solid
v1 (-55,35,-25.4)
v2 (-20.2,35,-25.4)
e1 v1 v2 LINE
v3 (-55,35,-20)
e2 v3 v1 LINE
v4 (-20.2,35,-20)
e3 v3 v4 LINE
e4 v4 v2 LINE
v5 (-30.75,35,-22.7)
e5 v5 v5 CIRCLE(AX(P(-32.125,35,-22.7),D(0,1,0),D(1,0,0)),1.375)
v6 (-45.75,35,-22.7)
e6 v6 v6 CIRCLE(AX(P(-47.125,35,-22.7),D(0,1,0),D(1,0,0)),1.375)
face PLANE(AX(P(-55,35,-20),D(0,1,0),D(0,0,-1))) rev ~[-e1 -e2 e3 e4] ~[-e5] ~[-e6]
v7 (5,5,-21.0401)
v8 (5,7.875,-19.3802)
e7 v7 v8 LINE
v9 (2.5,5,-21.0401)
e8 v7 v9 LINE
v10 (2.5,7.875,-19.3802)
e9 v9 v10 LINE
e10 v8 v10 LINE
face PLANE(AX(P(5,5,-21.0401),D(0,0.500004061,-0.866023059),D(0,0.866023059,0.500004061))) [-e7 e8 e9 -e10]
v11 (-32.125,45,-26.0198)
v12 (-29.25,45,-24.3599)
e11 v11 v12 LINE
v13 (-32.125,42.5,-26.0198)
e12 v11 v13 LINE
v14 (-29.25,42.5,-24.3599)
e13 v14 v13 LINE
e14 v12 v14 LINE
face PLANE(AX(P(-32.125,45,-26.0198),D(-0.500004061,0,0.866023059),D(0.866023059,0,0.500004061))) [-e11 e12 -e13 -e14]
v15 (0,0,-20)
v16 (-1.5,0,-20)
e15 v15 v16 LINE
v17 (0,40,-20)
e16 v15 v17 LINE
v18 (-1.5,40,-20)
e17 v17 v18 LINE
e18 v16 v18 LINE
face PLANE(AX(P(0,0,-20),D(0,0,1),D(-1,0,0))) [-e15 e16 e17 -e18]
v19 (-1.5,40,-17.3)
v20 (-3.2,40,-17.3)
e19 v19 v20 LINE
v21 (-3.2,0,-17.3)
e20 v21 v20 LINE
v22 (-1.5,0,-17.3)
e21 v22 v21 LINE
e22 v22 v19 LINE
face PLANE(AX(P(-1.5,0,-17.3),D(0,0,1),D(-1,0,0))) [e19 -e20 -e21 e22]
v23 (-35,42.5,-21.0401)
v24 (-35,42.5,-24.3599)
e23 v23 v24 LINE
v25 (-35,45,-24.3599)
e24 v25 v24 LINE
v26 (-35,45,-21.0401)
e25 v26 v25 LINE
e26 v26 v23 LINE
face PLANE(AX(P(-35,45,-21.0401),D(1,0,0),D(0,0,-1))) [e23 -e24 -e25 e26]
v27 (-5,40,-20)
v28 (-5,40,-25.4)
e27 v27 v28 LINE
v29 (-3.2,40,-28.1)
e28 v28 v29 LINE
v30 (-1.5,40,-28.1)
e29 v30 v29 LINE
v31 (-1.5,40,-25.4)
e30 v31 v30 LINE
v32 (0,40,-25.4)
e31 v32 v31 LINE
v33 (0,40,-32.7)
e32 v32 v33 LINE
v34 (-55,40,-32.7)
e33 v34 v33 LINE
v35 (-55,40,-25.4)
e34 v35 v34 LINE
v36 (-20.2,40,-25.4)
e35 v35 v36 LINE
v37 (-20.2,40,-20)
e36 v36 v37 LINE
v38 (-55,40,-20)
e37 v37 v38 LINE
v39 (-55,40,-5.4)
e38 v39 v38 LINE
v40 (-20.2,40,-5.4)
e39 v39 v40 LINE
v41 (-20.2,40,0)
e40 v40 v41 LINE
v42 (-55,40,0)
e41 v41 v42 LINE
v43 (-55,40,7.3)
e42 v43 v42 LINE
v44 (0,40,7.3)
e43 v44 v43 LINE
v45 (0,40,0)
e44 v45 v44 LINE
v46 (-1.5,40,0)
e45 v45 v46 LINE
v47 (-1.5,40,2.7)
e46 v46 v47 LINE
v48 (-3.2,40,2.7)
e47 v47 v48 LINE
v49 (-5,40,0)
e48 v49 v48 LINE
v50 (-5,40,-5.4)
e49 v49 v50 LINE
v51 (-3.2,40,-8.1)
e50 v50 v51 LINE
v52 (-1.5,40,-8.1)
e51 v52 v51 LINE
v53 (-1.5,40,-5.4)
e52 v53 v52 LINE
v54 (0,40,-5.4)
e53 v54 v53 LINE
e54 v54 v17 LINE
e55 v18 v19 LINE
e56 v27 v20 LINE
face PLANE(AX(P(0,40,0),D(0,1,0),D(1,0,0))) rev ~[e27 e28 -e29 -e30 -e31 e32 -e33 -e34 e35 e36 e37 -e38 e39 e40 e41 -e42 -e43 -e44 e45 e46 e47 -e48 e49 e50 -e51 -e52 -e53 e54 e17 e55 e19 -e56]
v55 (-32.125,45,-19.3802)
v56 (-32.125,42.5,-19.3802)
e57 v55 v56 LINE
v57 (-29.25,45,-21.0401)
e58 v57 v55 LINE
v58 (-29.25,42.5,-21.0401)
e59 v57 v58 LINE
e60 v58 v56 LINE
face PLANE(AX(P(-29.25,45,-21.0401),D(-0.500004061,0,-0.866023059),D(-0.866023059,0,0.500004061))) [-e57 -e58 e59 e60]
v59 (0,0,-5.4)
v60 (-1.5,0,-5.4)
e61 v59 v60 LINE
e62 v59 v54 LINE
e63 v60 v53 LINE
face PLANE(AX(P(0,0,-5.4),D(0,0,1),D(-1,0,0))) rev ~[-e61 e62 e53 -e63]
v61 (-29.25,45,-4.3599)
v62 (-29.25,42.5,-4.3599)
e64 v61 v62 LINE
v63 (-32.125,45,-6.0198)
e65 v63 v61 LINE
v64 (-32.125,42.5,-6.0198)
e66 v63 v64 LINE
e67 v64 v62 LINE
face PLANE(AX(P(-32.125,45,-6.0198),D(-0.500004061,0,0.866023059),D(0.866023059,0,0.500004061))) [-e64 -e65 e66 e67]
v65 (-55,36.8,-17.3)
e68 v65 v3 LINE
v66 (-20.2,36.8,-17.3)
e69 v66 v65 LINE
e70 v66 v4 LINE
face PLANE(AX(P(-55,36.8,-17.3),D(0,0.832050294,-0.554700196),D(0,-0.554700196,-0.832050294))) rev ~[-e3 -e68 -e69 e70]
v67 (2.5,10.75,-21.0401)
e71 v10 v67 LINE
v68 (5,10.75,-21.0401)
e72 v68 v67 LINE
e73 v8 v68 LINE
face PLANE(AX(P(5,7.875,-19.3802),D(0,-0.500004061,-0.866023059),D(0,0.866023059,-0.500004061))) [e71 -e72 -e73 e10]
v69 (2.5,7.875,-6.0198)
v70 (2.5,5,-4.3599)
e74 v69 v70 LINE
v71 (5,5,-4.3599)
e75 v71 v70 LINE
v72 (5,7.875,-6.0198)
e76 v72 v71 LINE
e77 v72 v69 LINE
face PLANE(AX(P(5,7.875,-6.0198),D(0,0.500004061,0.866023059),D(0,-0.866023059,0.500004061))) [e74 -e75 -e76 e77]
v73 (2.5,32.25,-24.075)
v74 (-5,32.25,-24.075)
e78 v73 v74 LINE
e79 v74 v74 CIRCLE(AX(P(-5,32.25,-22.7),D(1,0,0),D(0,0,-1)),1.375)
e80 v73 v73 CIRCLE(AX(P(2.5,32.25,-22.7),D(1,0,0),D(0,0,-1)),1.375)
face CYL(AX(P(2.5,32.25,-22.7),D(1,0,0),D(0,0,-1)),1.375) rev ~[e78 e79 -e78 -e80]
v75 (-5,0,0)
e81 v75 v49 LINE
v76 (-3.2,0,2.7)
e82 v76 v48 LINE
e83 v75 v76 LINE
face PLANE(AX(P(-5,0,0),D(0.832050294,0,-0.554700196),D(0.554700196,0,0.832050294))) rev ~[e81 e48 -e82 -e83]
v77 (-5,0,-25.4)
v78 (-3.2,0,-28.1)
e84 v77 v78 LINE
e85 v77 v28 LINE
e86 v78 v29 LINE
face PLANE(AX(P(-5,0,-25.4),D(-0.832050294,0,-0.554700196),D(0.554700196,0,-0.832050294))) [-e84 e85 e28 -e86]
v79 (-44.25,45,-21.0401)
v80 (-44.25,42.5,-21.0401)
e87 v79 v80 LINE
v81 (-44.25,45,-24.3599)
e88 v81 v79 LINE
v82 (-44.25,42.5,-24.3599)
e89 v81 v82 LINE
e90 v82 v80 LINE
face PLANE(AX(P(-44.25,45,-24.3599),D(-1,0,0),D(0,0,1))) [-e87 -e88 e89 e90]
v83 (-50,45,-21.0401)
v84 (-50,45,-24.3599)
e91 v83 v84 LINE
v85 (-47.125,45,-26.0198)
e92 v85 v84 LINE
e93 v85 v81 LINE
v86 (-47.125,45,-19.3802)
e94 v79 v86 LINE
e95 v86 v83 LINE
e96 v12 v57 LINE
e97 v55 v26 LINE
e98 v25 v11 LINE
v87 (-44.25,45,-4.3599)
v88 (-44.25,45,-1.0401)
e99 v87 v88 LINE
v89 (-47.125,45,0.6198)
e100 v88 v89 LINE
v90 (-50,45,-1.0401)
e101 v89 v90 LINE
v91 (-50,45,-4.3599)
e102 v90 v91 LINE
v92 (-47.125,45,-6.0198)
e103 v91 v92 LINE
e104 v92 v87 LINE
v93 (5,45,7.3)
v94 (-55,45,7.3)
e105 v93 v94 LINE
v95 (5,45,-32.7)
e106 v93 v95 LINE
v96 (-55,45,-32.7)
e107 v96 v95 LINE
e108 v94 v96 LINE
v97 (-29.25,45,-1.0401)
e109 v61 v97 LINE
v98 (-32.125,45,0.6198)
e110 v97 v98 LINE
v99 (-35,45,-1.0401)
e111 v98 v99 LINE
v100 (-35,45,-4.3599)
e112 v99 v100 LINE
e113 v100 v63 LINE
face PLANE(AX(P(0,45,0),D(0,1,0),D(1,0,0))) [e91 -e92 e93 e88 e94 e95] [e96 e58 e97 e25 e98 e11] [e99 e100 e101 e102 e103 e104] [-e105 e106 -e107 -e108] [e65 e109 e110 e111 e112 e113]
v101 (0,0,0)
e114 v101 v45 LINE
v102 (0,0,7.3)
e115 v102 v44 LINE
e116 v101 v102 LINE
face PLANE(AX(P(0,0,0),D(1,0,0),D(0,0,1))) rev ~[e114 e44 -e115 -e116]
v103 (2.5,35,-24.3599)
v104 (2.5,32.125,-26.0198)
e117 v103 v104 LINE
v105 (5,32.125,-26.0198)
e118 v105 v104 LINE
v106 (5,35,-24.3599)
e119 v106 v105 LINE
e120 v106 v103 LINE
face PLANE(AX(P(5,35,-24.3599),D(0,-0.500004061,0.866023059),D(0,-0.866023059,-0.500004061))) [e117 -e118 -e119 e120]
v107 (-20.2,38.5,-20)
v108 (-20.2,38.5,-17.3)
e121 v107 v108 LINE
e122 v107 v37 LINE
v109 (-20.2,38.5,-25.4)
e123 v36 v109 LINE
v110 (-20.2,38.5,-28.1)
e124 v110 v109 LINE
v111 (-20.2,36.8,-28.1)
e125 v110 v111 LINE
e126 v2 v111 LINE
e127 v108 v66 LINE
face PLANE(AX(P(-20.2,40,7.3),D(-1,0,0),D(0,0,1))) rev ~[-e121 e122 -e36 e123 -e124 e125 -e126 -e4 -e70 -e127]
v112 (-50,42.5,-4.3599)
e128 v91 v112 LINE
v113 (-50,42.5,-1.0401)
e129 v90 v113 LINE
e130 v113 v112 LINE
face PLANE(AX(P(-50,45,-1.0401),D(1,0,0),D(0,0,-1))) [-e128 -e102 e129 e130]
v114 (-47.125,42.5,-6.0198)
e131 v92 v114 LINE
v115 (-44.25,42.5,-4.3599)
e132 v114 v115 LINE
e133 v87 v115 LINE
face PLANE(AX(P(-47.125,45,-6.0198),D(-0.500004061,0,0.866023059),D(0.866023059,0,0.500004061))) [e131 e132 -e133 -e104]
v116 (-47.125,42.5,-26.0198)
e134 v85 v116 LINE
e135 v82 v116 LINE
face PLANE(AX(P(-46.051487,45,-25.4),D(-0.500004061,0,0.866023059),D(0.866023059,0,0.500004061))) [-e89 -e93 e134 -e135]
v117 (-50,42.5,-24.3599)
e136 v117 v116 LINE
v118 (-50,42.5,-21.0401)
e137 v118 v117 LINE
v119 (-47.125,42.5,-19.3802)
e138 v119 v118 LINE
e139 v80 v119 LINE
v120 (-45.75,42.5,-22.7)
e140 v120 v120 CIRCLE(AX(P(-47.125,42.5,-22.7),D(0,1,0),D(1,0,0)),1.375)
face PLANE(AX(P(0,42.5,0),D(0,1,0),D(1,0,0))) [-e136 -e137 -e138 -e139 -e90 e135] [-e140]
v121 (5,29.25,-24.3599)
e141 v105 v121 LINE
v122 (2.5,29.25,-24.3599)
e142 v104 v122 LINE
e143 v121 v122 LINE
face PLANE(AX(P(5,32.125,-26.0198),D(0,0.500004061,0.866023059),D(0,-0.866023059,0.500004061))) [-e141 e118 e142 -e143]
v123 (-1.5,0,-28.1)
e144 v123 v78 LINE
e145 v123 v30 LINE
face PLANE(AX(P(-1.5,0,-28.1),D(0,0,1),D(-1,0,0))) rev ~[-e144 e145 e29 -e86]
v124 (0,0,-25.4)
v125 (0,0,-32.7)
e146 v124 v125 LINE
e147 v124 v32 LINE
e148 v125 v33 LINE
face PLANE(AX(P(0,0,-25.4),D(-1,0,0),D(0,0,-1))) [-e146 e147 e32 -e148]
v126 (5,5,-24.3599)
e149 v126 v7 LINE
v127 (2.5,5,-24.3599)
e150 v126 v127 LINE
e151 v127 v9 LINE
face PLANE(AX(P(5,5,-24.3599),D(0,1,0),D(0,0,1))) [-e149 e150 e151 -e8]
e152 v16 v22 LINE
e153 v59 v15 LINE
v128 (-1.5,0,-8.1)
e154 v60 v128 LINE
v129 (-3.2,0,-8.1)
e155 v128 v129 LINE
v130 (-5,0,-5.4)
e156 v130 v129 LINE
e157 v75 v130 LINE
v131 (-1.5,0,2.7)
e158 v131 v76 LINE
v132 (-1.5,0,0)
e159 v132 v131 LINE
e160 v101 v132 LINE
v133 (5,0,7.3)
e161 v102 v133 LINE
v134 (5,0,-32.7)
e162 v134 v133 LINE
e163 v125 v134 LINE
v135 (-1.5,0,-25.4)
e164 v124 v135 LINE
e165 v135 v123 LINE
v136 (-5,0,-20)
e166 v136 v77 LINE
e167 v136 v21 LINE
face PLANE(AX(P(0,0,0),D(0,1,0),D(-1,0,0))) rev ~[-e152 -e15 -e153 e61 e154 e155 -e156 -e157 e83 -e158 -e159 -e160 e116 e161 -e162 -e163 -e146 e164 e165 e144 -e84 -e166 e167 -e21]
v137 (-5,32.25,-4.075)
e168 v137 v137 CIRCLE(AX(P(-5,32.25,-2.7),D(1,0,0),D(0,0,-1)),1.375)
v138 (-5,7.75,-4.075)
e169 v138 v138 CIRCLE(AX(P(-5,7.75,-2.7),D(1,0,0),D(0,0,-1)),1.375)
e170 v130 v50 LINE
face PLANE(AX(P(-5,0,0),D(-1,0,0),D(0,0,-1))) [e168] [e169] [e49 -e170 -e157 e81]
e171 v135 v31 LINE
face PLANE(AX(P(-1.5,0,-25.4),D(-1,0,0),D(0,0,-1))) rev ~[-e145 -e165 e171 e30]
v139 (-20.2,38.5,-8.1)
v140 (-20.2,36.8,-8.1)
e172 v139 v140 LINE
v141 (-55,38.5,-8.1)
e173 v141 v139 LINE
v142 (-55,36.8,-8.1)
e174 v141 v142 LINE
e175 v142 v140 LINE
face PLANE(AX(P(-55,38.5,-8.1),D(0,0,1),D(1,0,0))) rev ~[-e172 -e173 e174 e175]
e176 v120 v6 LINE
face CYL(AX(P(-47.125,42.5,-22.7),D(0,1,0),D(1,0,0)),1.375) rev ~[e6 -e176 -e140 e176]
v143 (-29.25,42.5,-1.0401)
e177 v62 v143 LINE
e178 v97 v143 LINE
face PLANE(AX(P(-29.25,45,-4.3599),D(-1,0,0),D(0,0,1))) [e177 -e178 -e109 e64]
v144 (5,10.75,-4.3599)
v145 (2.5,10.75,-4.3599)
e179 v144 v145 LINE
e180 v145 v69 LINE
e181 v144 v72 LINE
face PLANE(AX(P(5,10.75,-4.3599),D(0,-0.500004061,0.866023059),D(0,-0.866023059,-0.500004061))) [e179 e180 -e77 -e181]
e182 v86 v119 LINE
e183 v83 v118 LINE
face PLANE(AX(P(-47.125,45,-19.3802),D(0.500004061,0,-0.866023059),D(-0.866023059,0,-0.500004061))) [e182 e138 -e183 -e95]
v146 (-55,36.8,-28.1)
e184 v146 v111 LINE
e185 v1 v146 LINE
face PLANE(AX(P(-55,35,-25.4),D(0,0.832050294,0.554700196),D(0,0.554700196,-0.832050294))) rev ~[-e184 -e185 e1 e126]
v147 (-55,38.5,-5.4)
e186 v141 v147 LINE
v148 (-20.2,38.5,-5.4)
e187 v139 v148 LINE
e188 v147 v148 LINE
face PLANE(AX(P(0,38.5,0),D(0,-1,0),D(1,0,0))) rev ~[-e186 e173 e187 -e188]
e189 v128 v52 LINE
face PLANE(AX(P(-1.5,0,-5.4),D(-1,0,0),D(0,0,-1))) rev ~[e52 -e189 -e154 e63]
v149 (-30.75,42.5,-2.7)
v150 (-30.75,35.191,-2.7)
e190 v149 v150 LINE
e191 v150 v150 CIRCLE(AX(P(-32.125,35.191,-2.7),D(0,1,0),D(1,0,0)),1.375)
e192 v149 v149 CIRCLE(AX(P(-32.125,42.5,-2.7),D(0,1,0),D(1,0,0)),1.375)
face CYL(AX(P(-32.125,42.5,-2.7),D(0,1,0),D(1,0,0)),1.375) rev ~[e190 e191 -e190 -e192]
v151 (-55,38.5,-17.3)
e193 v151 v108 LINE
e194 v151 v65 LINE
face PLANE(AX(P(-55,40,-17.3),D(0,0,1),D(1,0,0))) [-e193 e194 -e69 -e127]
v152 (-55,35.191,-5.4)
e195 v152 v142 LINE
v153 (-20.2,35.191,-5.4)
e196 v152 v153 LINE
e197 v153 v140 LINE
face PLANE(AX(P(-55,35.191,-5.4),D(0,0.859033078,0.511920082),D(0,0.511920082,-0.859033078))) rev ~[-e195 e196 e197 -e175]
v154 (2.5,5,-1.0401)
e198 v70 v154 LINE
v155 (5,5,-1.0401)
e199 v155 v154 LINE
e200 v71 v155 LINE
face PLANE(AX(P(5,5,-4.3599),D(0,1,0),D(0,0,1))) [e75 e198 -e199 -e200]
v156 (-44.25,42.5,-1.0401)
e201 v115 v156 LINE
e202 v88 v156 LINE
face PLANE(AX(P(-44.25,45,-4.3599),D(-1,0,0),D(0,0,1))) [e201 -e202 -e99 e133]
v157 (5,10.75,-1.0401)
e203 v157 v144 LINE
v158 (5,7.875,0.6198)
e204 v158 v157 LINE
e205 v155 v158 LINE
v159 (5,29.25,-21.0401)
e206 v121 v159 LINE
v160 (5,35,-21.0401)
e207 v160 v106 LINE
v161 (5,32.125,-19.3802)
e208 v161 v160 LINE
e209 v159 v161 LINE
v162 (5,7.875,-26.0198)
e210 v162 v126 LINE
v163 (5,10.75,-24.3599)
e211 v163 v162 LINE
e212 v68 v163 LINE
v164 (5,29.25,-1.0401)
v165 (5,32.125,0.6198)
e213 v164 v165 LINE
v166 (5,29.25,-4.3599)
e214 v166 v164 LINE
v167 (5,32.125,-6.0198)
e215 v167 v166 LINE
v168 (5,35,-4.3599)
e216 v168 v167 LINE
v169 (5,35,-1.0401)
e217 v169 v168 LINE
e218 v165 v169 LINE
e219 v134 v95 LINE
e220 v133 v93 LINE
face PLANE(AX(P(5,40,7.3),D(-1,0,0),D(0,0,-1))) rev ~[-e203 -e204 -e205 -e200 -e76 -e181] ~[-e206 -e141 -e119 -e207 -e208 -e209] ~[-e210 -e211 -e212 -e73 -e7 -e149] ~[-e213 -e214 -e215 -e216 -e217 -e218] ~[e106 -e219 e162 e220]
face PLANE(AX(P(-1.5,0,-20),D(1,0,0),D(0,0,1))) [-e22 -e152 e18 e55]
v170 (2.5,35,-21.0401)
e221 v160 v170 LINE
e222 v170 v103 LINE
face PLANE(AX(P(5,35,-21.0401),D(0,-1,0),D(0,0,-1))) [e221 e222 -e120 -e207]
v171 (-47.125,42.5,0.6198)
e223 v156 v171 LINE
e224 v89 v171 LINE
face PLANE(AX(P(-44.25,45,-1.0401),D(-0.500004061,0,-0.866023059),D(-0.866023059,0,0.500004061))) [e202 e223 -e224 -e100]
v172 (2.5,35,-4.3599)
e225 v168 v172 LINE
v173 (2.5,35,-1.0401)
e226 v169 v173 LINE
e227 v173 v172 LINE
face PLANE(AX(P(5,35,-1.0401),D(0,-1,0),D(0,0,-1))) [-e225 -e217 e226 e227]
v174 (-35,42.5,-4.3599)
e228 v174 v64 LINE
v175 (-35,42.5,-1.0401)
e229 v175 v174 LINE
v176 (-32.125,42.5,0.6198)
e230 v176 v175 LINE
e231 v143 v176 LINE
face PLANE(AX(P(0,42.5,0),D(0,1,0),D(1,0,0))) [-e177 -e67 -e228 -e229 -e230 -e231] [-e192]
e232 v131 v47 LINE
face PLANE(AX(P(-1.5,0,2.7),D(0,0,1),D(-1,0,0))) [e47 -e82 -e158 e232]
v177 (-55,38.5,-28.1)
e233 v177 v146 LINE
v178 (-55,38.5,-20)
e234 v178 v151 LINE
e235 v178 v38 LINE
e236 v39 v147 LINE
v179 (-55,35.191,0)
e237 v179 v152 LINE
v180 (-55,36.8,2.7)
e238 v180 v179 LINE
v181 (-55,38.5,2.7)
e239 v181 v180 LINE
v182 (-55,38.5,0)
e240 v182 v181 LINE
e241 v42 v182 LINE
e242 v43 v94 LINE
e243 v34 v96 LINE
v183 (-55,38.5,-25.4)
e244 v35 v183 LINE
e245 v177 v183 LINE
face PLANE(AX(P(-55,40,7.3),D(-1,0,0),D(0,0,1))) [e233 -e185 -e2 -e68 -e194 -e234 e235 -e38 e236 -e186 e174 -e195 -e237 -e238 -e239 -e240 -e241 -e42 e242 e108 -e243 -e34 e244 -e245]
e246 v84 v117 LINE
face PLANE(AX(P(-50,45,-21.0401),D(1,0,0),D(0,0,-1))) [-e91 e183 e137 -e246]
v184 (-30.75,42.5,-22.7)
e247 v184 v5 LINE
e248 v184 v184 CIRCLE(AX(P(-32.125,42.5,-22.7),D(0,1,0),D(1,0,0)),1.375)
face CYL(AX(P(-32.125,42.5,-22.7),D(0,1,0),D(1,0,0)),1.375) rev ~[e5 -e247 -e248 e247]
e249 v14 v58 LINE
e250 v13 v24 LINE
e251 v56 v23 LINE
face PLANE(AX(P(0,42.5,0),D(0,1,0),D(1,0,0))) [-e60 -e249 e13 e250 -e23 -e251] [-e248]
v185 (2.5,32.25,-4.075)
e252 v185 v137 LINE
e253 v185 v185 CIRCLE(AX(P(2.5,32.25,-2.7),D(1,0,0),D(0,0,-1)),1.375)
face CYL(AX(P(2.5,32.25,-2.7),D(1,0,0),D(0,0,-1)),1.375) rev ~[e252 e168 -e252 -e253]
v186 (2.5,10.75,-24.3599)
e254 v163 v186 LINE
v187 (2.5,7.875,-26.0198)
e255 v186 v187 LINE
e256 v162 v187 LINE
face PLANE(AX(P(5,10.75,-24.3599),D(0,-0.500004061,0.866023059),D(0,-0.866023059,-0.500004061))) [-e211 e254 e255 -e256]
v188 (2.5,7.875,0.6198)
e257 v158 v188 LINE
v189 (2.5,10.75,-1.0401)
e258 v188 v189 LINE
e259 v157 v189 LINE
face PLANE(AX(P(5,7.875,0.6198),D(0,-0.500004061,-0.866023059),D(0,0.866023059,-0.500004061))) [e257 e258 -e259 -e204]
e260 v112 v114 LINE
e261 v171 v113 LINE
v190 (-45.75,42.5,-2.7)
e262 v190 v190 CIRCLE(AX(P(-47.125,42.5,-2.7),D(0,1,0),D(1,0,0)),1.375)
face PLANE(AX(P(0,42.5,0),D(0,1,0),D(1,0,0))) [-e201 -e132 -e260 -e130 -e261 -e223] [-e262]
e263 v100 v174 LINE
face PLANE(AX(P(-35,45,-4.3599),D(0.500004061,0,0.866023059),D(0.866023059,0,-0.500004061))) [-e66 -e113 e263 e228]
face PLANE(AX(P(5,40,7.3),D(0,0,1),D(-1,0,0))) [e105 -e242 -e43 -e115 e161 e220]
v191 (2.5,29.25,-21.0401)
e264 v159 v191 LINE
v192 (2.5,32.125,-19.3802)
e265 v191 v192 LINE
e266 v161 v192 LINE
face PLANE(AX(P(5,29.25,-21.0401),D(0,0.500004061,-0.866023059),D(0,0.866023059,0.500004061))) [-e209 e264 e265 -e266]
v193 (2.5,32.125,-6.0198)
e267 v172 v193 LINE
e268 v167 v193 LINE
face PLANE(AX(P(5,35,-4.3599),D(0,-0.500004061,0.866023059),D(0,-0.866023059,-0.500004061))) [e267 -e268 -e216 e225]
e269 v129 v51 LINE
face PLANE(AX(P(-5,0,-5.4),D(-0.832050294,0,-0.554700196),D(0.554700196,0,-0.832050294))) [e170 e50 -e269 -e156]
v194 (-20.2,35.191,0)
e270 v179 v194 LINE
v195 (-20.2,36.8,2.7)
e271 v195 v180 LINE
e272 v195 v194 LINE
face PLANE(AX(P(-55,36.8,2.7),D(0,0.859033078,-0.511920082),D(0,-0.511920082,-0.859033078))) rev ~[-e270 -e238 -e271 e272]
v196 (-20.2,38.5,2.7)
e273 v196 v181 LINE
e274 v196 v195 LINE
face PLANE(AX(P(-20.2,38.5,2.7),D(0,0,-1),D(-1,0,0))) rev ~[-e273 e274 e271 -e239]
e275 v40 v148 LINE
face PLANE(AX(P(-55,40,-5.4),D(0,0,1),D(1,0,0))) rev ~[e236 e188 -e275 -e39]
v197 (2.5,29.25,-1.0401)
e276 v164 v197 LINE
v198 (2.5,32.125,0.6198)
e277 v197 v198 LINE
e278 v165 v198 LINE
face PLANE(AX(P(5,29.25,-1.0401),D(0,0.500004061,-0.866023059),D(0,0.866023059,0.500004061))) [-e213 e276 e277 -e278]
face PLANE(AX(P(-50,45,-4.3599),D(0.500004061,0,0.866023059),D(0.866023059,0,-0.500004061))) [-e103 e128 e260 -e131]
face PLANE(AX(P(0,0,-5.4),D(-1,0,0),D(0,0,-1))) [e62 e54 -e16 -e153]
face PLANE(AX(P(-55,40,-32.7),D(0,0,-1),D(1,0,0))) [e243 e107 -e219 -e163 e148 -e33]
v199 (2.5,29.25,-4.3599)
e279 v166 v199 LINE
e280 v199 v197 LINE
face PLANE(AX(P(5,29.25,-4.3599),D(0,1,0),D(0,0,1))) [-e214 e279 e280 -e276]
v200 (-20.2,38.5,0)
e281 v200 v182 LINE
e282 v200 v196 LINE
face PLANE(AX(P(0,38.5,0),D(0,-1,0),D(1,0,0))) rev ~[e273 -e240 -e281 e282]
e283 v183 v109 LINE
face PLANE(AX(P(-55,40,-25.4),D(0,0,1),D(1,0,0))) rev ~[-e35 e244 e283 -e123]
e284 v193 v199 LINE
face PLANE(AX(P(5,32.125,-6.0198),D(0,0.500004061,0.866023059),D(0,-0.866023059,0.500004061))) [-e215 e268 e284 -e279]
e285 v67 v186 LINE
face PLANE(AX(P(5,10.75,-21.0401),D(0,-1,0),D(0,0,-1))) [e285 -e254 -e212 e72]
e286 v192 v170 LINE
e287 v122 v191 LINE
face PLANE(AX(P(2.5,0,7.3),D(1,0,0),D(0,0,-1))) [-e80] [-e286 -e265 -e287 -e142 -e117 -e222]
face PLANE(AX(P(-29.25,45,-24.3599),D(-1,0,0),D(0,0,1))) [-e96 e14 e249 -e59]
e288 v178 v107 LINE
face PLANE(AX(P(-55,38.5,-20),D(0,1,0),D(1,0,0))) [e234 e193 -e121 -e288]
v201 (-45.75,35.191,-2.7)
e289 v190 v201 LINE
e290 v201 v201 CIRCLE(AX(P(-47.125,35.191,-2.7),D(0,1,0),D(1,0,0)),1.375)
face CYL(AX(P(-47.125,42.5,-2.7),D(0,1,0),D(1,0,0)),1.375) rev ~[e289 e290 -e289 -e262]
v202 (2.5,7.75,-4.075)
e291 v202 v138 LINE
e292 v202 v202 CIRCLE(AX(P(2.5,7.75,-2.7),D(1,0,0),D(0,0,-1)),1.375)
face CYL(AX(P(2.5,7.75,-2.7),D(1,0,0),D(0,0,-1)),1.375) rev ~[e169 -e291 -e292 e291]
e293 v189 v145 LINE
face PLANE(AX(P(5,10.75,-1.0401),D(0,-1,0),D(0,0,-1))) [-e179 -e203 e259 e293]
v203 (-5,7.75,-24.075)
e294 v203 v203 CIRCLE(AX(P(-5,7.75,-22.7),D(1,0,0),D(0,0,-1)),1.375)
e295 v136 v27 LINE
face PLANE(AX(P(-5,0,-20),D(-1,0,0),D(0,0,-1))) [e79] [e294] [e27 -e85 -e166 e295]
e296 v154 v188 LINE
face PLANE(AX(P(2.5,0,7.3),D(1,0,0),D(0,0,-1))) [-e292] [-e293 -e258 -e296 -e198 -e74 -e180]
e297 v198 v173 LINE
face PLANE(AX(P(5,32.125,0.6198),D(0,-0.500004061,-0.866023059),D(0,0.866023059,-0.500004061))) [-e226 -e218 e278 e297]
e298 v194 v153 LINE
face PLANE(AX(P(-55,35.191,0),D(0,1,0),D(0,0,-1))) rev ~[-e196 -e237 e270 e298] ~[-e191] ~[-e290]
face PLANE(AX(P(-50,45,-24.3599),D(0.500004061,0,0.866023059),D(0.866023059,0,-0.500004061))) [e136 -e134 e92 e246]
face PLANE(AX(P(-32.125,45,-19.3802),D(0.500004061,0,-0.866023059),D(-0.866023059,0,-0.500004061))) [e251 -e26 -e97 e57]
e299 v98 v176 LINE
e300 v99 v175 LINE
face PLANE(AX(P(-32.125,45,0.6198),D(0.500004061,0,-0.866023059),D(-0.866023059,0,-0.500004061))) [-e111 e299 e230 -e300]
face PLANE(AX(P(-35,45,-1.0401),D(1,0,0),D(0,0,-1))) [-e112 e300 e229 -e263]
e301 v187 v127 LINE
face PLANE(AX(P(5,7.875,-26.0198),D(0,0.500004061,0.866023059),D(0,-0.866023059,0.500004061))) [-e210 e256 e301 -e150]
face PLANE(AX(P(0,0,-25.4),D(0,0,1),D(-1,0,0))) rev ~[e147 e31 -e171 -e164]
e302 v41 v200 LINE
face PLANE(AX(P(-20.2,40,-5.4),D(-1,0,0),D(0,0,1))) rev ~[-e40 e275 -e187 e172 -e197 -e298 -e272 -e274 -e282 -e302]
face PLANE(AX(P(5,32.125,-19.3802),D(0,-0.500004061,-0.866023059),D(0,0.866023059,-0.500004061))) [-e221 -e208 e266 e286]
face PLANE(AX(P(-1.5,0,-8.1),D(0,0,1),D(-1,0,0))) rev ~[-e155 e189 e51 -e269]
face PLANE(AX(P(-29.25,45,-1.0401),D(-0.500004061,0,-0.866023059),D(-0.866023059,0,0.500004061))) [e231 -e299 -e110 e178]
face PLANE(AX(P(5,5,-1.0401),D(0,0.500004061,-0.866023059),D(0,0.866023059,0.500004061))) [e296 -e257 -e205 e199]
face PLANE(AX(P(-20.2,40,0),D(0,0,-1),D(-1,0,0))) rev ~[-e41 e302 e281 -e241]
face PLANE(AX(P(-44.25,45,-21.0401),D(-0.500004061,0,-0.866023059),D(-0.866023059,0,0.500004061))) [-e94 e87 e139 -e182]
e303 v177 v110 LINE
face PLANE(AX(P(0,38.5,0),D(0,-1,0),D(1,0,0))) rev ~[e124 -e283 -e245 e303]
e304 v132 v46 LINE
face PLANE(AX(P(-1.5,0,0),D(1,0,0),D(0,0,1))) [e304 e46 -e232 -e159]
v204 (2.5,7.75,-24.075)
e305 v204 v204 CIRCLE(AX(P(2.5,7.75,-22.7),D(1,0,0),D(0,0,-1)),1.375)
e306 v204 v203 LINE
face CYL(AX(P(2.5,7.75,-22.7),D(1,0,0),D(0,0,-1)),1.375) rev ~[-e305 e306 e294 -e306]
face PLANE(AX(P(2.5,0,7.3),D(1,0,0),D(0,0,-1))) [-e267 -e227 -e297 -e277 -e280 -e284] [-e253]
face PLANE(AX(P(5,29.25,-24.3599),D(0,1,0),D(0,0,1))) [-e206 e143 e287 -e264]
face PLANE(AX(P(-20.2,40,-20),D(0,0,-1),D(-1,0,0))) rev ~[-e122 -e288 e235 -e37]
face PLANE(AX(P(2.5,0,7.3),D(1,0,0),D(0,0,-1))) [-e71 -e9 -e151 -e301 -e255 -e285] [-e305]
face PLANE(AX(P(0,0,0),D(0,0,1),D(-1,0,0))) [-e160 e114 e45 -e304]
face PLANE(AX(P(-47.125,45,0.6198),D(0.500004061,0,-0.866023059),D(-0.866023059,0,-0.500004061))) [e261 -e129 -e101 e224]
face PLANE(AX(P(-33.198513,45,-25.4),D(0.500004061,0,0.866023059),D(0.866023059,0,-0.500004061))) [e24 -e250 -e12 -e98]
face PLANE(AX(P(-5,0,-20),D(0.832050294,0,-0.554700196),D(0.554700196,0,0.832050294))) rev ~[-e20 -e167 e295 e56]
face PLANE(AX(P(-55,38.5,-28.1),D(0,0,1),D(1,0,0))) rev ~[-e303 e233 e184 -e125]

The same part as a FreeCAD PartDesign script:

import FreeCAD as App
import Part
import Sketcher

V = App.Vector
Q = App.Units.Quantity


def add_polygon(sketch, points):
    """Adds a closed chain of lines whose ends are joined by coincident constraints."""
    first, n = sketch.GeometryCount, len(points)
    for a, b in zip(points, points[1:] + points[:1]):
        sketch.addGeometry(Part.LineSegment(App.Vector(*a, 0), App.Vector(*b, 0)), False)
    for i in range(n):
        sketch.addConstraint(Sketcher.Constraint("Coincident", first + i, 2, first + (i + 1) % n, 1))

doc = App.newDocument("Part")
body = doc.addObject("PartDesign::Body", "Body")

# Sketch on XZ plane
sketch1 = body.newObject("Sketcher::SketchObject", "Sketch")
sketch1.AttachmentSupport = (doc.getObject("XZ_Plane"), [""])
sketch1.MapMode = "FlatFace"
add_polygon(sketch1, [(0, -20), (0, -5.4), (-1.5, -5.4), (-1.5, -8.1), (-3.2, -8.1), (-5, -5.4), (-5, 0), (-3.2, 2.7), (-1.5, 2.7), (-1.5, 0), (0, 0), (0, 7.3), (5, 7.3), (5, -32.7), (0, -32.7), (0, -25.4), (-1.5, -25.4), (-1.5, -28.1), (-3.2, -28.1), (-5, -25.4), (-5, -20), (-3.2, -17.3), (-1.5, -17.3), (-1.5, -20)])  # lines 0-23
sketch1.addConstraint([
    Sketcher.Constraint("Vertical", 0),
    Sketcher.Constraint("Horizontal", 1),
    Sketcher.Constraint("Vertical", 2),
    Sketcher.Constraint("Horizontal", 3),
    Sketcher.Constraint("Vertical", 5),
    Sketcher.Constraint("Horizontal", 7),
    Sketcher.Constraint("Vertical", 8),
    Sketcher.Constraint("Horizontal", 9),
    Sketcher.Constraint("Vertical", 10),
    Sketcher.Constraint("Horizontal", 11),
    Sketcher.Constraint("Vertical", 12),
    Sketcher.Constraint("Horizontal", 13),
    Sketcher.Constraint("Vertical", 14),
    Sketcher.Constraint("Horizontal", 15),
    Sketcher.Constraint("Vertical", 16),
    Sketcher.Constraint("Horizontal", 17),
    Sketcher.Constraint("Vertical", 19),
    Sketcher.Constraint("Horizontal", 21),
    Sketcher.Constraint("Vertical", 22),
    Sketcher.Constraint("Horizontal", 23),
    Sketcher.Constraint("Coincident", 9, 2, -1, 1),
    Sketcher.Constraint("PointOnObject", 0, 2, -2),
    Sketcher.Constraint("PointOnObject", 5, 2, -1),
    Sketcher.Constraint("PointOnObject", 13, 2, -2),
    Sketcher.Constraint("Parallel", 4, 18),
    Sketcher.Constraint("Parallel", 6, 20),
    Sketcher.Constraint("Horizontal", 1, 2, 4, 2),
    Sketcher.Constraint("Horizontal", 15, 2, 18, 2),
    Sketcher.Constraint("Horizontal", 19, 2, 22, 2),
    Sketcher.Constraint("Vertical", 3, 2, 6, 2),
    Sketcher.Constraint("Vertical", 2, 2, 7, 2),
    Sketcher.Constraint("Vertical", 8, 2, 15, 2),
    Sketcher.Constraint("Vertical", 6, 2, 17, 2),
    Sketcher.Constraint("Vertical", 5, 2, 18, 2),
    Sketcher.Constraint("Vertical", 17, 2, 20, 2),
    Sketcher.Constraint("Vertical", 16, 2, 21, 2),
    Sketcher.Constraint("Equal", 2, 8),
    Sketcher.Constraint("Equal", 10, 14),
    Sketcher.Constraint("Equal", 5, 19),
    Sketcher.Constraint("DistanceX", 11, 1, 11, 2, Q("5 mm")),
    Sketcher.Constraint("DistanceX", 1, 2, 1, 1, Q("1.5 mm")),
    Sketcher.Constraint("DistanceX", 3, 2, 3, 1, Q("1.7 mm")),
    Sketcher.Constraint("DistanceY", 2, 2, 2, 1, Q("2.7 mm")),
    Sketcher.Constraint("DistanceY", 5, 1, 5, 2, Q("5.4 mm")),
    Sketcher.Constraint("DistanceY", 10, 1, 10, 2, Q("7.3 mm")),
    Sketcher.Constraint("DistanceX", 4, 2, -1, 1, Q("5 mm")),
    Sketcher.Constraint("DistanceY", 19, 2, -1, 1, Q("20 mm")),
])
pad1 = body.newObject("PartDesign::Pad", "Pad")
pad1.Profile = sketch1
pad1.Length = 40
pad1.Reversed = True

# Sketch on YZ plane
sketch2 = body.newObject("Sketcher::SketchObject", "Sketch001")
sketch2.AttachmentSupport = (doc.getObject("YZ_Plane"), [""])
sketch2.MapMode = "FlatFace"
sketch2.AttachmentOffset = App.Placement(V(0, 0, 5), App.Rotation())
add_polygon(sketch2, [(5, -1), (5, -4.4), (7.9, -6), (10.8, -4.4), (10.8, -1), (7.9, 0.6)])  # lines 0-5
add_polygon(sketch2, [(5, -21), (5, -24.4), (7.9, -26), (10.8, -24.4), (10.8, -21), (7.9, -19.4)])  # lines 6-11
add_polygon(sketch2, [(29.2, -1), (29.2, -4.4), (32.1, -6), (35, -4.4), (35, -1), (32.1, 0.6)])  # lines 12-17
add_polygon(sketch2, [(29.2, -21), (29.2, -24.4), (32.1, -26), (35, -24.4), (35, -21), (32.1, -19.4)])  # lines 18-23
sketch2.addConstraint([
    Sketcher.Constraint("Vertical", 0),
    Sketcher.Constraint("Vertical", 3),
    Sketcher.Constraint("Vertical", 6),
    Sketcher.Constraint("Vertical", 9),
    Sketcher.Constraint("Vertical", 12),
    Sketcher.Constraint("Vertical", 15),
    Sketcher.Constraint("Vertical", 18),
    Sketcher.Constraint("Vertical", 21),
    Sketcher.Constraint("Parallel", 1, 4),
    Sketcher.Constraint("Parallel", 2, 5),
    Sketcher.Constraint("Parallel", 4, 7),
    Sketcher.Constraint("Parallel", 5, 8),
    Sketcher.Constraint("Parallel", 7, 10),
    Sketcher.Constraint("Parallel", 8, 11),
    Sketcher.Constraint("Parallel", 10, 13),
    Sketcher.Constraint("Parallel", 11, 14),
    Sketcher.Constraint("Parallel", 13, 16),
    Sketcher.Constraint("Parallel", 14, 17),
    Sketcher.Constraint("Parallel", 16, 19),
    Sketcher.Constraint("Parallel", 17, 20),
    Sketcher.Constraint("Parallel", 19, 22),
    Sketcher.Constraint("Parallel", 20, 23),
    Sketcher.Constraint("Horizontal", 0, 2, 2, 2),
    Sketcher.Constraint("Horizontal", 3, 2, 5, 2),
    Sketcher.Constraint("Horizontal", 6, 2, 8, 2),
    Sketcher.Constraint("Horizontal", 9, 2, 11, 2),
    Sketcher.Constraint("Horizontal", 2, 2, 12, 2),
    Sketcher.Constraint("Horizontal", 1, 2, 13, 2),
    Sketcher.Constraint("Horizontal", 12, 2, 14, 2),
    Sketcher.Constraint("Horizontal", 5, 2, 15, 2),
    Sketcher.Constraint("Horizontal", 4, 2, 16, 2),
    Sketcher.Constraint("Horizontal", 8, 2, 18, 2),
    Sketcher.Constraint("Horizontal", 7, 2, 19, 2),
    Sketcher.Constraint("Horizontal", 18, 2, 20, 2),
    Sketcher.Constraint("Horizontal", 11, 2, 21, 2),
    Sketcher.Constraint("Horizontal", 10, 2, 22, 2),
    Sketcher.Constraint("Vertical", 1, 2, 4, 2),
    Sketcher.Constraint("Vertical", 5, 2, 6, 2),
    Sketcher.Constraint("Vertical", 4, 2, 7, 2),
    Sketcher.Constraint("Vertical", 17, 2, 18, 2),
    Sketcher.Constraint("Equal", 3, 6),
    Sketcher.Constraint("DistanceX", -1, 1, 0, 2, Q("5 mm")),
    Sketcher.Constraint("Angle", 1, Q("-30.0003 deg")),
    Sketcher.Constraint("DistanceX", 0, 2, 2, 2, Q("5.75 mm")),
    Sketcher.Constraint("DistanceX", -1, 1, 14, 2, Q("35 mm")),
    Sketcher.Constraint("DistanceY", 6, 2, 0, 2, Q("20 mm")),
    Sketcher.Constraint("DistanceY", 0, 2, -1, 1, Q("4.36 mm")),
    Sketcher.Constraint("DistanceY", 3, 2, -1, 1, Q("1.04 mm")),
])
pocket1 = body.newObject("PartDesign::Pocket", "Pocket")
pocket1.Profile = sketch2
pocket1.Length = 2.5

# Sketch on YZ plane
sketch3 = body.newObject("Sketcher::SketchObject", "Sketch002")
sketch3.AttachmentSupport = (doc.getObject("YZ_Plane"), [""])
sketch3.MapMode = "FlatFace"
sketch3.AttachmentOffset = App.Placement(V(0, 0, 2.5), App.Rotation())
sketch3.addGeometry([
    Part.Circle(V(7.8, -22.7, 0), V(0, 0, 1), 1.4),
    Part.Circle(V(7.8, -2.7, 0), V(0, 0, 1), 1.4),
    Part.Circle(V(32.2, -2.7, 0), V(0, 0, 1), 1.4),
    Part.Circle(V(32.2, -22.7, 0), V(0, 0, 1), 1.4),
], False)
sketch3.addConstraint([
    Sketcher.Constraint("Equal", 0, 1),
    Sketcher.Constraint("Equal", 1, 2),
    Sketcher.Constraint("Equal", 2, 3),
    Sketcher.Constraint("Horizontal", 1, 3, 2, 3),
    Sketcher.Constraint("Horizontal", 0, 3, 3, 3),
    Sketcher.Constraint("Vertical", 0, 3, 1, 3),
    Sketcher.Constraint("Vertical", 2, 3, 3, 3),
    Sketcher.Constraint("Diameter", 0, Q("2.75 mm")),
    Sketcher.Constraint("DistanceY", 0, 3, 1, 3, Q("20 mm")),
    Sketcher.Constraint("DistanceY", 0, 3, -1, 1, Q("22.7 mm")),
    Sketcher.Constraint("DistanceX", 1, 3, 2, 3, Q("24.5 mm")),
    Sketcher.Constraint("DistanceX", -1, 1, 0, 3, Q("7.75 mm")),
])
pocket2 = body.newObject("PartDesign::Pocket", "Pocket001")
pocket2.Profile = sketch3
pocket2.Length = 20

# Sketch on XZ plane
sketch4 = body.newObject("Sketcher::SketchObject", "Sketch003")
sketch4.AttachmentSupport = (doc.getObject("XZ_Plane"), [""])
sketch4.MapMode = "FlatFace"
sketch4.AttachmentOffset = App.Placement(V(0, 0, -40), App.Rotation())
add_polygon(sketch4, [(-55, 7), (5, 7), (5, -33), (-55, -33)])  # lines 0-3
sketch4.addConstraint([
    Sketcher.Constraint("Horizontal", 0),
    Sketcher.Constraint("Vertical", 1),
    Sketcher.Constraint("Horizontal", 2),
    Sketcher.Constraint("Vertical", 3),
    Sketcher.Constraint("DistanceX", 0, 1, 0, 2, Q("60 mm")),
    Sketcher.Constraint("DistanceY", 1, 2, 1, 1, Q("40 mm")),
    Sketcher.Constraint("DistanceX", -1, 1, 0, 2, Q("5 mm")),
    Sketcher.Constraint("DistanceY", -1, 1, 0, 2, Q("7.3 mm")),
])
pad2 = body.newObject("PartDesign::Pad", "Pad001")
pad2.Profile = sketch4
pad2.Length = 5
pad2.Reversed = True

# Sketch on XZ plane
sketch5 = body.newObject("Sketcher::SketchObject", "Sketch004")
sketch5.AttachmentSupport = (doc.getObject("XZ_Plane"), [""])
sketch5.MapMode = "FlatFace"
sketch5.AttachmentOffset = App.Placement(V(0, 0, -40), App.Rotation())
add_polygon(sketch5, [(-55, 0), (-55, -5), (-20, -5), (-20, 0)])  # lines 0-3
add_polygon(sketch5, [(-55, -20), (-55, -25), (-20, -25), (-20, -20)])  # lines 4-7
sketch5.addConstraint([
    Sketcher.Constraint("Vertical", 0),
    Sketcher.Constraint("Horizontal", 1),
    Sketcher.Constraint("Vertical", 2),
    Sketcher.Constraint("Horizontal", 3),
    Sketcher.Constraint("Vertical", 4),
    Sketcher.Constraint("Horizontal", 5),
    Sketcher.Constraint("Vertical", 6),
    Sketcher.Constraint("Horizontal", 7),
    Sketcher.Constraint("PointOnObject", 2, 2, -1),
    Sketcher.Constraint("Vertical", 3, 2, 4, 2),
    Sketcher.Constraint("Vertical", 2, 2, 5, 2),
    Sketcher.Constraint("Equal", 2, 4),
    Sketcher.Constraint("DistanceY", 0, 2, 0, 1, Q("5.4 mm")),
    Sketcher.Constraint("DistanceX", 1, 2, -1, 1, Q("20.2 mm")),
    Sketcher.Constraint("DistanceX", 1, 1, 1, 2, Q("34.8 mm")),
    Sketcher.Constraint("DistanceY", 6, 2, -1, 1, Q("20 mm")),
])
pad3 = body.newObject("PartDesign::Pad", "Pad002")
pad3.Profile = sketch5
pad3.Length = 1.5

# Sketch on XZ plane
sketch6 = body.newObject("Sketcher::SketchObject", "Sketch005")
sketch6.AttachmentSupport = (doc.getObject("XZ_Plane"), [""])
sketch6.MapMode = "FlatFace"
sketch6.AttachmentOffset = App.Placement(V(0, 0, -38.5), App.Rotation())
add_polygon(sketch6, [(-55, 3), (-55, -8), (-20, -8), (-20, 3)])  # lines 0-3
add_polygon(sketch6, [(-55, -20), (-55, -28), (-20, -28), (-20, -20)])  # lines 4-7
sketch6.addConstraint([
    Sketcher.Constraint("Vertical", 0),
    Sketcher.Constraint("Horizontal", 1),
    Sketcher.Constraint("Vertical", 2),
    Sketcher.Constraint("Horizontal", 3),
    Sketcher.Constraint("Vertical", 4),
    Sketcher.Constraint("Horizontal", 5),
    Sketcher.Constraint("Vertical", 6),
    Sketcher.Constraint("Horizontal", 7),
    Sketcher.Constraint("Vertical", 3, 2, 4, 2),
    Sketcher.Constraint("Vertical", 2, 2, 5, 2),
    Sketcher.Constraint("DistanceY", 0, 2, 0, 1, Q("10.8 mm")),
    Sketcher.Constraint("DistanceY", -1, 1, 2, 2, Q("2.7 mm")),
    Sketcher.Constraint("DistanceX", 1, 1, 1, 2, Q("34.8 mm")),
    Sketcher.Constraint("DistanceY", 4, 2, 4, 1, Q("8.1 mm")),
    Sketcher.Constraint("DistanceX", 0, 2, -1, 1, Q("55 mm")),
    Sketcher.Constraint("DistanceY", 6, 2, -1, 1, Q("20 mm")),
])
pad4 = body.newObject("PartDesign::Pad", "Pad003")
pad4.Profile = sketch6
pad4.Length = 1.7

# Sketch on YZ plane
sketch7 = body.newObject("Sketcher::SketchObject", "Sketch006")
sketch7.AttachmentSupport = (doc.getObject("YZ_Plane"), [""])
sketch7.MapMode = "FlatFace"
sketch7.AttachmentOffset = App.Placement(V(0, 0, -55), App.Rotation())
add_polygon(sketch7, [(35.2, -5.4), (35.2, 0), (36.8, 2.7), (36.8, -8.1)])  # lines 0-3
sketch7.addConstraint([
    Sketcher.Constraint("Vertical", 0),
    Sketcher.Constraint("Vertical", 2),
    Sketcher.Constraint("PointOnObject", 0, 2, -1),
    Sketcher.Constraint("Equal", 1, 3),
    Sketcher.Constraint("DistanceY", 0, 1, 0, 2, Q("5.4 mm")),
    Sketcher.Constraint("DistanceY", 2, 2, 2, 1, Q("10.8 mm")),
    Sketcher.Constraint("DistanceX", -1, 1, 1, 2, Q("36.8 mm")),
    Sketcher.Constraint("Distance", 1, Q("3.143 mm")),
])
pad5 = body.newObject("PartDesign::Pad", "Pad004")
pad5.Profile = sketch7
pad5.Length = 34.8

# Sketch on XY plane
sketch8 = body.newObject("Sketcher::SketchObject", "Sketch007")
sketch8.AttachmentSupport = (doc.getObject("XY_Plane"), [""])
sketch8.MapMode = "FlatFace"
sketch8.AttachmentOffset = App.Placement(V(0, 0, -20), App.Rotation())
add_polygon(sketch8, [(-55, 36.8), (-20.2, 36.8), (-20.2, 38.5), (-55, 38.5)])  # lines 0-3
sketch8.addConstraint([
    Sketcher.Constraint("Horizontal", 0),
    Sketcher.Constraint("Vertical", 1),
    Sketcher.Constraint("Horizontal", 2),
    Sketcher.Constraint("Vertical", 3),
    Sketcher.Constraint("DistanceY", 1, 1, 1, 2, Q("1.7 mm")),
    Sketcher.Constraint("DistanceX", 0, 1, 0, 2, Q("34.8 mm")),
    Sketcher.Constraint("DistanceX", 2, 2, -1, 1, Q("55 mm")),
    Sketcher.Constraint("DistanceY", -1, 1, 0, 2, Q("36.8 mm")),
])
pad6 = body.newObject("PartDesign::Pad", "Pad005")
pad6.Profile = sketch8
pad6.Length = 2.7

# Sketch on YZ plane
sketch9 = body.newObject("Sketcher::SketchObject", "Sketch008")
sketch9.AttachmentSupport = (doc.getObject("YZ_Plane"), [""])
sketch9.MapMode = "FlatFace"
sketch9.AttachmentOffset = App.Placement(V(0, 0, -55), App.Rotation())
add_polygon(sketch9, [(36.8, -17.3), (36.8, -28.1), (35, -25.4), (35, -20)])  # lines 0-3
sketch9.addConstraint([
    Sketcher.Constraint("Vertical", 0),
    Sketcher.Constraint("Vertical", 2),
    Sketcher.Constraint("Equal", 1, 3),
    Sketcher.Constraint("DistanceY", 2, 1, 2, 2, Q("5.4 mm")),
    Sketcher.Constraint("DistanceY", 0, 2, 0, 1, Q("10.8 mm")),
    Sketcher.Constraint("DistanceX", -1, 1, 1, 2, Q("35 mm")),
    Sketcher.Constraint("DistanceY", 2, 2, -1, 1, Q("20 mm")),
    Sketcher.Constraint("DistanceX", -1, 1, 0, 2, Q("36.8 mm")),
])
pad7 = body.newObject("PartDesign::Pad", "Pad006")
pad7.Profile = sketch9
pad7.Length = 34.8

# Sketch on XZ plane
sketch10 = body.newObject("Sketcher::SketchObject", "Sketch009")
sketch10.AttachmentSupport = (doc.getObject("XZ_Plane"), [""])
sketch10.MapMode = "FlatFace"
sketch10.AttachmentOffset = App.Placement(V(0, 0, -45), App.Rotation())
add_polygon(sketch10, [(-44.2, -1), (-44.2, -4.4), (-47.1, -6), (-50, -4.4), (-50, -1), (-47.1, 0.6)])  # lines 0-5
add_polygon(sketch10, [(-32.1, -26), (-35, -24.4), (-35, -21), (-32.1, -19.4), (-29.2, -21), (-29.2, -24.4)])  # lines 6-11
add_polygon(sketch10, [(-44.2, -21), (-44.2, -24.4), (-47.1, -26), (-50, -24.4), (-50, -21), (-47.1, -19.4)])  # lines 12-17
add_polygon(sketch10, [(-29.2, -1), (-29.2, -4.4), (-32.1, -6), (-35, -4.4), (-35, -1), (-32.1, 0.6)])  # lines 18-23
sketch10.addConstraint([
    Sketcher.Constraint("Vertical", 0),
    Sketcher.Constraint("Vertical", 3),
    Sketcher.Constraint("Vertical", 7),
    Sketcher.Constraint("Vertical", 10),
    Sketcher.Constraint("Vertical", 12),
    Sketcher.Constraint("Vertical", 15),
    Sketcher.Constraint("Vertical", 18),
    Sketcher.Constraint("Vertical", 21),
    Sketcher.Constraint("Parallel", 1, 4),
    Sketcher.Constraint("Parallel", 2, 5),
    Sketcher.Constraint("Parallel", 5, 6),
    Sketcher.Constraint("Parallel", 4, 8),
    Sketcher.Constraint("Parallel", 6, 9),
    Sketcher.Constraint("Parallel", 8, 11),
    Sketcher.Constraint("Parallel", 11, 13),
    Sketcher.Constraint("Parallel", 9, 14),
    Sketcher.Constraint("Parallel", 13, 16),
    Sketcher.Constraint("Parallel", 14, 17),
    Sketcher.Constraint("Parallel", 16, 19),
    Sketcher.Constraint("Parallel", 17, 20),
    Sketcher.Constraint("Parallel", 19, 22),
    Sketcher.Constraint("Parallel", 20, 23),
    Sketcher.Constraint("Horizontal", 0, 2, 2, 2),
    Sketcher.Constraint("Horizontal", 3, 2, 5, 2),
    Sketcher.Constraint("Horizontal", 7, 2, 9, 2),
    Sketcher.Constraint("Horizontal", 6, 2, 10, 2),
    Sketcher.Constraint("Horizontal", 10, 2, 12, 2),
    Sketcher.Constraint("Horizontal", 11, 2, 13, 2),
    Sketcher.Constraint("Horizontal", 12, 2, 14, 2),
    Sketcher.Constraint("Horizontal", 9, 2, 15, 2),
    Sketcher.Constraint("Horizontal", 8, 2, 16, 2),
    Sketcher.Constraint("Horizontal", 2, 2, 18, 2),
    Sketcher.Constraint("Horizontal", 1, 2, 19, 2),
    Sketcher.Constraint("Horizontal", 18, 2, 20, 2),
    Sketcher.Constraint("Horizontal", 5, 2, 21, 2),
    Sketcher.Constraint("Horizontal", 4, 2, 22, 2),
    Sketcher.Constraint("Vertical", 1, 2, 4, 2),
    Sketcher.Constraint("Vertical", 5, 2, 12, 2),
    Sketcher.Constraint("Vertical", 4, 2, 13, 2),
    Sketcher.Constraint("Vertical", 10, 2, 18, 2),
    Sketcher.Constraint("Equal", 3, 7),
    Sketcher.Constraint("DistanceY", 6, 2, 0, 2, Q("20 mm")),
    Sketcher.Constraint("Angle", 1, Q("-149.9997 deg")),
    Sketcher.Constraint("DistanceX", 2, 2, 0, 2, Q("5.75 mm")),
    Sketcher.Constraint("DistanceX", 2, 2, -1, 1, Q("50 mm")),
    Sketcher.Constraint("DistanceX", 6, 2, -1, 1, Q("35 mm")),
    Sketcher.Constraint("DistanceY", 0, 2, -1, 1, Q("4.36 mm")),
    Sketcher.Constraint("DistanceY", 3, 2, -1, 1, Q("1.04 mm")),
])
pocket3 = body.newObject("PartDesign::Pocket", "Pocket002")
pocket3.Profile = sketch10
pocket3.Length = 2.5
pocket3.Reversed = True

# Sketch on XZ plane
sketch11 = body.newObject("Sketcher::SketchObject", "Sketch010")
sketch11.AttachmentSupport = (doc.getObject("XZ_Plane"), [""])
sketch11.MapMode = "FlatFace"
sketch11.AttachmentOffset = App.Placement(V(0, 0, -42.5), App.Rotation())
sketch11.addGeometry([
    Part.Circle(V(-47.1, -2.7, 0), V(0, 0, 1), 1.4),
    Part.Circle(V(-32.1, -2.7, 0), V(0, 0, 1), 1.4),
    Part.Circle(V(-47.1, -22.7, 0), V(0, 0, 1), 1.4),
    Part.Circle(V(-32.1, -22.7, 0), V(0, 0, 1), 1.4),
], False)
sketch11.addConstraint([
    Sketcher.Constraint("Equal", 0, 1),
    Sketcher.Constraint("Equal", 1, 2),
    Sketcher.Constraint("Equal", 2, 3),
    Sketcher.Constraint("Horizontal", 0, 3, 1, 3),
    Sketcher.Constraint("Horizontal", 2, 3, 3, 3),
    Sketcher.Constraint("Vertical", 0, 3, 2, 3),
    Sketcher.Constraint("Vertical", 1, 3, 3, 3),
    Sketcher.Constraint("Diameter", 0, Q("2.75 mm")),
    Sketcher.Constraint("DistanceX", 0, 3, 1, 3, Q("15 mm")),
    Sketcher.Constraint("DistanceY", 2, 3, 0, 3, Q("20 mm")),
    Sketcher.Constraint("DistanceY", 0, 3, -1, 1, Q("2.7 mm")),
    Sketcher.Constraint("DistanceX", 0, 3, -1, 1, Q("47.125 mm")),
])
pocket4 = body.newObject("PartDesign::Pocket", "Pocket003")
pocket4.Profile = sketch11
pocket4.Length = 20
pocket4.Reversed = True

doc.recompute()
